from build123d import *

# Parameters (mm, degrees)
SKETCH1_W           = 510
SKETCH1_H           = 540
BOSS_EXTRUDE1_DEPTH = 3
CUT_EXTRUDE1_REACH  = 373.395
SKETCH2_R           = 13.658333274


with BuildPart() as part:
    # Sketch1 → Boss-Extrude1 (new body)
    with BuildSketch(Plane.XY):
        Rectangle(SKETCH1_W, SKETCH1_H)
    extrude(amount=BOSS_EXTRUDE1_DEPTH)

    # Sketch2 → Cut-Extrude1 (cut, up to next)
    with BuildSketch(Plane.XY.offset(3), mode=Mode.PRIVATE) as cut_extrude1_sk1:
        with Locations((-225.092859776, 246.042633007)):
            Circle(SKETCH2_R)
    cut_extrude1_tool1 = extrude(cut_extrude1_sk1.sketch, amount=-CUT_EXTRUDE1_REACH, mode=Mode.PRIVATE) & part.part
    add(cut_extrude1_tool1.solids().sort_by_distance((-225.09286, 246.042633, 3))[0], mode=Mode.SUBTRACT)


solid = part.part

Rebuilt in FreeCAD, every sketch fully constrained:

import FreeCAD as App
import Part
import Sketcher
from FreeCAD import Vector
Q = App.Units.Quantity

doc = App.newDocument("Part")
body = doc.addObject("PartDesign::Body", "Body")

# Sketch on XY plane
sketch1 = body.newObject("Sketcher::SketchObject", "Sketch")
sketch1.AttachmentSupport = (doc.getObject("XY_Plane"), [""])
sketch1.MapMode = "FlatFace"
sketch1.addGeometry([
    Part.LineSegment(Vector(-255, 270, 0), Vector(-255, -270, 0)),
    Part.LineSegment(Vector(-255, -270, 0), Vector(255, -270, 0)),
    Part.LineSegment(Vector(255, -270, 0), Vector(255, 270, 0)),
    Part.LineSegment(Vector(255, 270, 0), Vector(-255, 270, 0)),
], False)
sketch1.addConstraint([
    Sketcher.Constraint("Coincident", 0, 2, 1, 1),
    Sketcher.Constraint("Coincident", 1, 2, 2, 1),
    Sketcher.Constraint("Coincident", 2, 2, 3, 1),
    Sketcher.Constraint("Coincident", 3, 2, 0, 1),
    Sketcher.Constraint("Vertical", 0),
    Sketcher.Constraint("Horizontal", 1),
    Sketcher.Constraint("Vertical", 2),
    Sketcher.Constraint("Horizontal", 3),
    Sketcher.Constraint("Symmetric", 0, 2, 2, 2, -1, 1),
    Sketcher.Constraint("DistanceX", 1, 1, 1, 2, Q("510 mm")),
    Sketcher.Constraint("DistanceY", 0, 2, 0, 1, Q("540 mm")),
])
pad1 = body.newObject("PartDesign::Pad", "Pad")
pad1.Profile = sketch1
pad1.Length = 3

# Sketch on XY plane
sketch2 = body.newObject("Sketcher::SketchObject", "Sketch001")
sketch2.AttachmentSupport = (doc.getObject("XY_Plane"), [""])
sketch2.MapMode = "FlatFace"
sketch2.AttachmentOffset = App.Placement(Vector(0, 0, 3), App.Rotation())
sketch2.addGeometry(Part.Circle(Vector(-225.09286, 246.042633, 0), Vector(0, 0, 1), 13.658333), False)
sketch2.addConstraint([
    Sketcher.Constraint("Diameter", 0, Q("27.316667 mm")),
    Sketcher.Constraint("DistanceX", 0, 3, -1, 1, Q("225.09286 mm")),
    Sketcher.Constraint("DistanceY", -1, 1, 0, 3, Q("246.042633 mm")),
])
pocket1 = body.newObject("PartDesign::Pocket", "Pocket")
pocket1.Profile = sketch2
pocket1.Type = "UpToFirst"

doc.recompute()
